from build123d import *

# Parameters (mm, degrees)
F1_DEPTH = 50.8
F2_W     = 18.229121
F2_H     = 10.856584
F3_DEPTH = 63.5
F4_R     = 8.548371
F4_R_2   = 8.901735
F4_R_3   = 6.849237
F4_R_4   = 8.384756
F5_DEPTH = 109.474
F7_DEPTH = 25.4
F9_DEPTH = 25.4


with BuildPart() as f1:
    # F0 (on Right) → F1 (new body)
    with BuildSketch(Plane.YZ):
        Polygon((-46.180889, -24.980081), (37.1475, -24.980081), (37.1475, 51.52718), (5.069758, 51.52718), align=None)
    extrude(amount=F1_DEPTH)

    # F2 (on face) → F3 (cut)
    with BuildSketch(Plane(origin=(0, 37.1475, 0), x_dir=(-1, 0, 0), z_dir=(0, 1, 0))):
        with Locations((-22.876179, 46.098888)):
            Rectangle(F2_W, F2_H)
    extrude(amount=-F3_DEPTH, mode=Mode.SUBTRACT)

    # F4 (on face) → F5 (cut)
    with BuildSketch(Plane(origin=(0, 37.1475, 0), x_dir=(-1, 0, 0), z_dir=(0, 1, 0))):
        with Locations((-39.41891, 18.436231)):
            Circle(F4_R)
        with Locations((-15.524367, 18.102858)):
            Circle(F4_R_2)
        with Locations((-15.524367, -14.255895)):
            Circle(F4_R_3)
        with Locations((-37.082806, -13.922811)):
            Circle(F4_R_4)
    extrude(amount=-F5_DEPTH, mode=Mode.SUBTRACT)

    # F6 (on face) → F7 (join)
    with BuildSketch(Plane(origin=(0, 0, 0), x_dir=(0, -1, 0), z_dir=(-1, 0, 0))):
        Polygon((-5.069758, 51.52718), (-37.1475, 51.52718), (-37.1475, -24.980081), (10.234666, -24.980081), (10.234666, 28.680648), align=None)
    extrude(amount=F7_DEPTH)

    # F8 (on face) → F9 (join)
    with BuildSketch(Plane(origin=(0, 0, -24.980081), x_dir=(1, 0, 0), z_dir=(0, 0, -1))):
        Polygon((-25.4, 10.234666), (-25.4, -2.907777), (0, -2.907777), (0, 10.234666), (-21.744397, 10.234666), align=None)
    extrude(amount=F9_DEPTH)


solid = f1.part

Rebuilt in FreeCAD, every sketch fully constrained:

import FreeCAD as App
import Part
import Sketcher

V = App.Vector
Q = App.Units.Quantity

doc = App.newDocument("Part")
body = doc.addObject("PartDesign::Body", "Body")

sketch1 = body.newObject("Sketcher::SketchObject", "Sketch")
sketch1.AttachmentSupport = (doc.getObject("YZ_Plane"), [""])
sketch1.MapMode = "FlatFace"
sketch1.addGeometry([
    Part.LineSegment(V(-46.180889, -24.980081, 0), V(37.1475, -24.980081, 0)),
    Part.LineSegment(V(37.1475, -24.980081, 0), V(37.1475, 51.52718, 0)),
    Part.LineSegment(V(37.1475, 51.52718, 0), V(5.069758, 51.52718, 0)),
    Part.LineSegment(V(5.069758, 51.52718, 0), V(-46.180889, -24.980081, 0)),
], False)
sketch1.addConstraint([
    Sketcher.Constraint("Coincident", 0, 2, 1, 1),
    Sketcher.Constraint("Coincident", 1, 2, 2, 1),
    Sketcher.Constraint("Coincident", 2, 2, 3, 1),
    Sketcher.Constraint("Coincident", 3, 2, 0, 1),
    Sketcher.Constraint("Horizontal", 0),
    Sketcher.Constraint("Vertical", 1),
    Sketcher.Constraint("Horizontal", 2),
    Sketcher.Constraint("DistanceX", -1, 1, 0, 2, Q("1.4625 in")),
    Sketcher.Constraint("DistanceX", 0, 1, 0, 2, 83.328389),
    Sketcher.Constraint("DistanceY", 1, 1, 1, 2, 76.507261),
    Sketcher.Constraint("Distance", 3, 92.08686),
    Sketcher.Constraint("DistanceY", 0, 2, -1, 1, 24.980081),
])
pad1 = body.newObject("PartDesign::Pad", "Pad")
pad1.Profile = sketch1
pad1.Length = Q("2 in")

sketch2 = body.newObject("Sketcher::SketchObject", "Sketch001")
sketch2.AttachmentSupport = (doc.getObject("XZ_Plane"), [""])
sketch2.MapMode = "FlatFace"
sketch2.AttachmentOffset = App.Placement(V(0, 0, -1.4625 * 25.4), App.Rotation())
sketch2.addGeometry([
    Part.LineSegment(V(31.99074, 51.52718, 0), V(31.99074, 40.670596, 0)),
    Part.LineSegment(V(31.99074, 40.670596, 0), V(13.761619, 40.670596, 0)),
    Part.LineSegment(V(13.761619, 40.670596, 0), V(13.761619, 51.52718, 0)),
    Part.LineSegment(V(13.761619, 51.52718, 0), V(31.99074, 51.52718, 0)),
], False)
sketch2.addConstraint([
    Sketcher.Constraint("Coincident", 0, 2, 1, 1),
    Sketcher.Constraint("Coincident", 1, 2, 2, 1),
    Sketcher.Constraint("Coincident", 2, 2, 3, 1),
    Sketcher.Constraint("Coincident", 3, 2, 0, 1),
    Sketcher.Constraint("Vertical", 0),
    Sketcher.Constraint("Horizontal", 1),
    Sketcher.Constraint("Vertical", 2),
    Sketcher.Constraint("Horizontal", 3),
    Sketcher.Constraint("DistanceX", 1, 2, 1, 1, 18.229121),
    Sketcher.Constraint("DistanceY", 0, 2, 0, 1, 10.856584),
    Sketcher.Constraint("DistanceX", -1, 1, 0, 2, 31.99074),
    Sketcher.Constraint("DistanceY", -1, 1, 2, 2, 51.52718),
])
pocket1 = body.newObject("PartDesign::Pocket", "Pocket")
pocket1.Profile = sketch2
pocket1.Length = Q("2.5 in")
pocket1.Reversed = True

sketch3 = body.newObject("Sketcher::SketchObject", "Sketch002")
sketch3.AttachmentSupport = (doc.getObject("XZ_Plane"), [""])
sketch3.MapMode = "FlatFace"
sketch3.AttachmentOffset = App.Placement(V(0, 0, -1.4625 * 25.4), App.Rotation())
sketch3.addGeometry([
    Part.Circle(V(39.41891, 18.436231, 0), V(0, 0, 1), 8.548371),
    Part.Circle(V(15.524367, 18.102858, 0), V(0, 0, 1), 8.901735),
    Part.Circle(V(15.524367, -14.255895, 0), V(0, 0, 1), 6.849237),
    Part.Circle(V(37.082806, -13.922811, 0), V(0, 0, 1), 8.384756),
], False)
sketch3.addConstraint([
    Sketcher.Constraint("Vertical", 1, 3, 2, 3),
    Sketcher.Constraint("Diameter", 0, Q("0.6731001 in")),
    Sketcher.Constraint("Diameter", 1, 17.80347),
    Sketcher.Constraint("Diameter", 3, 16.769512),
    Sketcher.Constraint("Diameter", 2, 13.698474),
    Sketcher.Constraint("DistanceX", -1, 1, 0, 3, 39.41891),
    Sketcher.Constraint("DistanceY", -1, 1, 0, 3, 18.436231),
    Sketcher.Constraint("DistanceY", -1, 1, 1, 3, 18.102858),
    Sketcher.Constraint("DistanceY", 3, 3, -1, 1, 13.922811),
    Sketcher.Constraint("DistanceX", 2, 3, 3, 3, 21.558439),
    Sketcher.Constraint("DistanceX", -1, 1, 1, 3, 15.524367),
    Sketcher.Constraint("DistanceY", 2, 3, -1, 1, 14.255895),
])
pocket2 = body.newObject("PartDesign::Pocket", "Pocket001")
pocket2.Profile = sketch3
pocket2.Length = Q("4.31 in")
pocket2.Reversed = True

sketch4 = body.newObject("Sketcher::SketchObject", "Sketch003")
sketch4.AttachmentSupport = (doc.getObject("YZ_Plane"), [""])
sketch4.MapMode = "FlatFace"
sketch4.addGeometry([
    Part.LineSegment(V(5.069758, 51.52718, 0), V(37.1475, 51.52718, 0)),
    Part.LineSegment(V(37.1475, 51.52718, 0), V(37.1475, -24.980081, 0)),
    Part.LineSegment(V(37.1475, -24.980081, 0), V(-10.234666, -24.980081, 0)),
    Part.LineSegment(V(-10.234666, -24.980081, 0), V(-10.234666, 28.680648, 0)),
    Part.LineSegment(V(-10.234666, 28.680648, 0), V(5.069758, 51.52718, 0)),
], False)
sketch4.addConstraint([
    Sketcher.Constraint("Coincident", 0, 2, 1, 1),
    Sketcher.Constraint("Coincident", 1, 2, 2, 1),
    Sketcher.Constraint("Coincident", 2, 2, 3, 1),
    Sketcher.Constraint("Coincident", 3, 2, 4, 1),
    Sketcher.Constraint("Coincident", 4, 2, 0, 1),
    Sketcher.Constraint("Horizontal", 0),
    Sketcher.Constraint("Vertical", 1),
    Sketcher.Constraint("Horizontal", 2),
    Sketcher.Constraint("Vertical", 3),
    Sketcher.Constraint("DistanceX", -1, 1, 0, 2, Q("1.4625 in")),
    Sketcher.Constraint("Distance", 4, 27.498898),
    Sketcher.Constraint("DistanceY", 1, 2, 1, 1, 76.507261),
    Sketcher.Constraint("DistanceY", 3, 1, 3, 2, 53.660729),
    Sketcher.Constraint("DistanceX", 0, 1, 0, 2, 32.077742),
    Sketcher.Constraint("DistanceY", -1, 1, 0, 2, 51.52718),
])
pad2 = body.newObject("PartDesign::Pad", "Pad001")
pad2.Profile = sketch4
pad2.Length = Q("1 in")
pad2.Reversed = True

sketch5 = body.newObject("Sketcher::SketchObject", "Sketch004")
sketch5.AttachmentSupport = (doc.getObject("XY_Plane"), [""])
sketch5.MapMode = "FlatFace"
sketch5.AttachmentOffset = App.Placement(V(0, 0, -24.980081), App.Rotation())
sketch5.addGeometry([
    Part.LineSegment(V(-25.4, -10.234666, 0), V(-25.4, 2.907777, 0)),
    Part.LineSegment(V(-25.4, 2.907777, 0), V(0, 2.907777, 0)),
    Part.LineSegment(V(0, 2.907777, 0), V(0, -10.234666, 0)),
    Part.LineSegment(V(0, -10.234666, 0), V(-25.4, -10.234666, 0)),
], False)
sketch5.addConstraint([
    Sketcher.Constraint("Coincident", 0, 2, 1, 1),
    Sketcher.Constraint("Coincident", 1, 2, 2, 1),
    Sketcher.Constraint("Coincident", 2, 2, 3, 1),
    Sketcher.Constraint("Coincident", 3, 2, 0, 1),
    Sketcher.Constraint("Vertical", 0),
    Sketcher.Constraint("Horizontal", 1),
    Sketcher.Constraint("Vertical", 2),
    Sketcher.Constraint("Horizontal", 3),
    Sketcher.Constraint("PointOnObject", 1, 2, -2),
    Sketcher.Constraint("DistanceX", 1, 1, 1, 2, Q("1 in")),
    Sketcher.Constraint("DistanceY", 0, 1, 0, 2, 13.142443),
    Sketcher.Constraint("DistanceY", -1, 1, 0, 2, 2.907777),
])
pad3 = body.newObject("PartDesign::Pad", "Pad002")
pad3.Profile = sketch5
pad3.Length = Q("1 in")
pad3.Reversed = True

doc.recompute()
